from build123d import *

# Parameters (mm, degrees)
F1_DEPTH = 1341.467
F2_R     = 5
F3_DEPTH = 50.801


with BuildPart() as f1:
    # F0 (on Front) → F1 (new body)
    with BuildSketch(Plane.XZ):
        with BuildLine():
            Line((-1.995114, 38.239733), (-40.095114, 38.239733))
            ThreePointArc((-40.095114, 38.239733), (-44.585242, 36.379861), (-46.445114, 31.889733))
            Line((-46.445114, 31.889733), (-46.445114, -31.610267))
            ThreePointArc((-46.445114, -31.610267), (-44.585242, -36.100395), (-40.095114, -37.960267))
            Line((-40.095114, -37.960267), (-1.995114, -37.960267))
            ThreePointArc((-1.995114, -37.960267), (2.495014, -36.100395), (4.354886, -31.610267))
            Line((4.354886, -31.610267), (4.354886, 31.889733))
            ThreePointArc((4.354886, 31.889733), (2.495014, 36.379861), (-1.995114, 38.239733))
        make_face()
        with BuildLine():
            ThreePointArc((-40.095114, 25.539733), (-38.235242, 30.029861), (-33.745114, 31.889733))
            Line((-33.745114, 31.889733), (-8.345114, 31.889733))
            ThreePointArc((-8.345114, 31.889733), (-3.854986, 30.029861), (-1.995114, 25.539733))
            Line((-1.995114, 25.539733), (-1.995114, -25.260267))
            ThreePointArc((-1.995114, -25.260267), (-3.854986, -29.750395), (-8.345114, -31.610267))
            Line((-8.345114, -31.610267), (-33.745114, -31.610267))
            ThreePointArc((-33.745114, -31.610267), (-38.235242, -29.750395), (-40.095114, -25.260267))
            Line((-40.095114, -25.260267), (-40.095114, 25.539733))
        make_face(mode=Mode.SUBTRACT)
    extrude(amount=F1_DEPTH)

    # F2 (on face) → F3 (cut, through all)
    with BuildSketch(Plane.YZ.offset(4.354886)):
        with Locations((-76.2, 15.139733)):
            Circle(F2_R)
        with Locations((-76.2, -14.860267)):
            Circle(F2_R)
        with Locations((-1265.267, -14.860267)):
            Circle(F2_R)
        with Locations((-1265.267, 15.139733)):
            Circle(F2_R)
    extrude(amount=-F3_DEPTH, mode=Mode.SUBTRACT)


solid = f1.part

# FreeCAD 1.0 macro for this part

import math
import FreeCAD as App
import Part
import Sketcher
Q = App.Units.Quantity

doc = App.newDocument("Part")
body = doc.addObject("PartDesign::Body", "Body")

# Sketch on XZ plane
sketch1 = body.newObject("Sketcher::SketchObject", "Sketch")
sketch1.AttachmentSupport = (doc.getObject("XZ_Plane"), [""])
sketch1.MapMode = "FlatFace"
sketch1.addGeometry(Part.LineSegment(App.Vector(-2, 38, 0), App.Vector(-40, 38, 0)), False)
sketch1.addGeometry(Part.ArcOfCircle(Part.Circle(App.Vector(-40, 32, 0), App.Vector(0, 0, 1), 6), math.radians(90), math.radians(180)), False)
sketch1.addGeometry(Part.LineSegment(App.Vector(-46, 32, 0), App.Vector(-46, -32, 0)), False)
sketch1.addGeometry(Part.ArcOfCircle(Part.Circle(App.Vector(-40, -32, 0), App.Vector(0, 0, 1), 6), math.radians(-180), math.radians(-90)), False)
sketch1.addGeometry(Part.LineSegment(App.Vector(-40, -38, 0), App.Vector(-2, -38, 0)), False)
sketch1.addGeometry(Part.ArcOfCircle(Part.Circle(App.Vector(-2, -32, 0), App.Vector(0, 0, 1), 6), math.radians(-90), math.radians(0)), False)
sketch1.addGeometry(Part.LineSegment(App.Vector(4, -32, 0), App.Vector(4, 32, 0)), False)
sketch1.addGeometry(Part.ArcOfCircle(Part.Circle(App.Vector(-2, 32, 0), App.Vector(0, 0, 1), 6), math.radians(0), math.radians(90)), False)
sketch1.addGeometry(Part.LineSegment(App.Vector(-40, -25, 0), App.Vector(-40, 26, 0)), False)
sketch1.addGeometry(Part.ArcOfCircle(Part.Circle(App.Vector(-34, 26, 0), App.Vector(0, 0, 1), 6), math.radians(90), math.radians(180)), False)
sketch1.addGeometry(Part.LineSegment(App.Vector(-34, 32, 0), App.Vector(-8, 32, 0)), False)
sketch1.addGeometry(Part.ArcOfCircle(Part.Circle(App.Vector(-8, 26, 0), App.Vector(0, 0, 1), 6), math.radians(0), math.radians(90)), False)
sketch1.addGeometry(Part.LineSegment(App.Vector(-2, 26, 0), App.Vector(-2, -25, 0)), False)
sketch1.addGeometry(Part.ArcOfCircle(Part.Circle(App.Vector(-8, -25, 0), App.Vector(0, 0, 1), 6), math.radians(-90), math.radians(0)), False)
sketch1.addGeometry(Part.LineSegment(App.Vector(-8, -32, 0), App.Vector(-34, -32, 0)), False)
sketch1.addGeometry(Part.ArcOfCircle(Part.Circle(App.Vector(-34, -25, 0), App.Vector(0, 0, 1), 6), math.radians(-180), math.radians(-90)), False)
sketch1.addConstraint(Sketcher.Constraint("Tangent", 0, 2, 1, 1))
sketch1.addConstraint(Sketcher.Constraint("Tangent", 1, 2, 2, 1))
sketch1.addConstraint(Sketcher.Constraint("Tangent", 2, 2, 3, 1))
sketch1.addConstraint(Sketcher.Constraint("Tangent", 3, 2, 4, 1))
sketch1.addConstraint(Sketcher.Constraint("Tangent", 4, 2, 5, 1))
sketch1.addConstraint(Sketcher.Constraint("Tangent", 5, 2, 6, 1))
sketch1.addConstraint(Sketcher.Constraint("Tangent", 6, 2, 7, 1))
sketch1.addConstraint(Sketcher.Constraint("Tangent", 7, 2, 0, 1))
sketch1.addConstraint(Sketcher.Constraint("Tangent", 8, 2, 9, 2))
sketch1.addConstraint(Sketcher.Constraint("Tangent", 9, 1, 10, 1))
sketch1.addConstraint(Sketcher.Constraint("Tangent", 10, 2, 11, 2))
sketch1.addConstraint(Sketcher.Constraint("Tangent", 11, 1, 12, 1))
sketch1.addConstraint(Sketcher.Constraint("Tangent", 12, 2, 13, 2))
sketch1.addConstraint(Sketcher.Constraint("Tangent", 13, 1, 14, 1))
sketch1.addConstraint(Sketcher.Constraint("Tangent", 14, 2, 15, 2))
sketch1.addConstraint(Sketcher.Constraint("Tangent", 15, 1, 8, 1))
sketch1.addConstraint(Sketcher.Constraint("Horizontal", 0))
sketch1.addConstraint(Sketcher.Constraint("Vertical", 2))
sketch1.addConstraint(Sketcher.Constraint("Horizontal", 4))
sketch1.addConstraint(Sketcher.Constraint("Vertical", 6))
sketch1.addConstraint(Sketcher.Constraint("Vertical", 8))
sketch1.addConstraint(Sketcher.Constraint("Horizontal", 10))
sketch1.addConstraint(Sketcher.Constraint("Vertical", 12))
sketch1.addConstraint(Sketcher.Constraint("Horizontal", 14))
sketch1.addConstraint(Sketcher.Constraint("Equal", 1, 3))
sketch1.addConstraint(Sketcher.Constraint("Equal", 3, 5))
sketch1.addConstraint(Sketcher.Constraint("Equal", 5, 7))
sketch1.addConstraint(Sketcher.Constraint("Equal", 7, 9))
sketch1.addConstraint(Sketcher.Constraint("Equal", 9, 11))
sketch1.addConstraint(Sketcher.Constraint("Equal", 11, 13))
sketch1.addConstraint(Sketcher.Constraint("Equal", 13, 15))
sketch1.addConstraint(Sketcher.Constraint("Horizontal", 6, 2, 9, 1))
sketch1.addConstraint(Sketcher.Constraint("Horizontal", 5, 2, 13, 1))
sketch1.addConstraint(Sketcher.Constraint("Vertical", 3, 2, 8, 2))
sketch1.addConstraint(Sketcher.Constraint("Vertical", 7, 2, 11, 1))
sketch1.addConstraint(Sketcher.Constraint("DistanceX", 10, 1, 10, 2, Q("1 in")))
sketch1.addConstraint(Sketcher.Constraint("DistanceY", 8, 1, 8, 2, Q("2 in")))
sketch1.addConstraint(Sketcher.Constraint("Radius", 1, Q("0.25 in")))
sketch1.addConstraint(Sketcher.Constraint("DistanceX", 1, 3, -1, 1, Q("40.095114 mm")))
sketch1.addConstraint(Sketcher.Constraint("DistanceY", -1, 1, 1, 3, Q("31.889733 mm")))
pad1 = body.newObject("PartDesign::Pad", "Pad")
pad1.Profile = sketch1
pad1.Length = 1341.467

# Sketch on YZ plane
sketch2 = body.newObject("Sketcher::SketchObject", "Sketch001")
sketch2.AttachmentSupport = (doc.getObject("YZ_Plane"), [""])
sketch2.MapMode = "FlatFace"
sketch2.AttachmentOffset = App.Placement(App.Vector(0, 0, 4.354886), App.Rotation())
sketch2.addGeometry(Part.Circle(App.Vector(-76, 15, 0), App.Vector(0, 0, 1), 5), False)
sketch2.addGeometry(Part.Circle(App.Vector(-76, -15, 0), App.Vector(0, 0, 1), 5), False)
sketch2.addGeometry(Part.Circle(App.Vector(-1265, -15, 0), App.Vector(0, 0, 1), 5), False)
sketch2.addGeometry(Part.Circle(App.Vector(-1265, 15, 0), App.Vector(0, 0, 1), 5), False)
sketch2.addConstraint(Sketcher.Constraint("Equal", 0, 1))
sketch2.addConstraint(Sketcher.Constraint("Equal", 1, 2))
sketch2.addConstraint(Sketcher.Constraint("Equal", 2, 3))
sketch2.addConstraint(Sketcher.Constraint("Horizontal", 1, 3, 2, 3))
sketch2.addConstraint(Sketcher.Constraint("Horizontal", 0, 3, 3, 3))
sketch2.addConstraint(Sketcher.Constraint("Vertical", 0, 3, 1, 3))
sketch2.addConstraint(Sketcher.Constraint("Vertical", 2, 3, 3, 3))
sketch2.addConstraint(Sketcher.Constraint("DistanceX", 0, 3, -1, 1, Q("3 in")))
sketch2.addConstraint(Sketcher.Constraint("Diameter", 0, Q("10 mm")))
sketch2.addConstraint(Sketcher.Constraint("DistanceX", 2, 3, -1, 1, Q("1265.267 mm")))
sketch2.addConstraint(Sketcher.Constraint("DistanceY", 1, 3, 0, 3, Q("30 mm")))
sketch2.addConstraint(Sketcher.Constraint("DistanceY", -1, 1, 0, 3, Q("15.139733 mm")))
pocket1 = body.newObject("PartDesign::Pocket", "Pocket")
pocket1.Profile = sketch2
pocket1.Type = "ThroughAll"

doc.recompute()
